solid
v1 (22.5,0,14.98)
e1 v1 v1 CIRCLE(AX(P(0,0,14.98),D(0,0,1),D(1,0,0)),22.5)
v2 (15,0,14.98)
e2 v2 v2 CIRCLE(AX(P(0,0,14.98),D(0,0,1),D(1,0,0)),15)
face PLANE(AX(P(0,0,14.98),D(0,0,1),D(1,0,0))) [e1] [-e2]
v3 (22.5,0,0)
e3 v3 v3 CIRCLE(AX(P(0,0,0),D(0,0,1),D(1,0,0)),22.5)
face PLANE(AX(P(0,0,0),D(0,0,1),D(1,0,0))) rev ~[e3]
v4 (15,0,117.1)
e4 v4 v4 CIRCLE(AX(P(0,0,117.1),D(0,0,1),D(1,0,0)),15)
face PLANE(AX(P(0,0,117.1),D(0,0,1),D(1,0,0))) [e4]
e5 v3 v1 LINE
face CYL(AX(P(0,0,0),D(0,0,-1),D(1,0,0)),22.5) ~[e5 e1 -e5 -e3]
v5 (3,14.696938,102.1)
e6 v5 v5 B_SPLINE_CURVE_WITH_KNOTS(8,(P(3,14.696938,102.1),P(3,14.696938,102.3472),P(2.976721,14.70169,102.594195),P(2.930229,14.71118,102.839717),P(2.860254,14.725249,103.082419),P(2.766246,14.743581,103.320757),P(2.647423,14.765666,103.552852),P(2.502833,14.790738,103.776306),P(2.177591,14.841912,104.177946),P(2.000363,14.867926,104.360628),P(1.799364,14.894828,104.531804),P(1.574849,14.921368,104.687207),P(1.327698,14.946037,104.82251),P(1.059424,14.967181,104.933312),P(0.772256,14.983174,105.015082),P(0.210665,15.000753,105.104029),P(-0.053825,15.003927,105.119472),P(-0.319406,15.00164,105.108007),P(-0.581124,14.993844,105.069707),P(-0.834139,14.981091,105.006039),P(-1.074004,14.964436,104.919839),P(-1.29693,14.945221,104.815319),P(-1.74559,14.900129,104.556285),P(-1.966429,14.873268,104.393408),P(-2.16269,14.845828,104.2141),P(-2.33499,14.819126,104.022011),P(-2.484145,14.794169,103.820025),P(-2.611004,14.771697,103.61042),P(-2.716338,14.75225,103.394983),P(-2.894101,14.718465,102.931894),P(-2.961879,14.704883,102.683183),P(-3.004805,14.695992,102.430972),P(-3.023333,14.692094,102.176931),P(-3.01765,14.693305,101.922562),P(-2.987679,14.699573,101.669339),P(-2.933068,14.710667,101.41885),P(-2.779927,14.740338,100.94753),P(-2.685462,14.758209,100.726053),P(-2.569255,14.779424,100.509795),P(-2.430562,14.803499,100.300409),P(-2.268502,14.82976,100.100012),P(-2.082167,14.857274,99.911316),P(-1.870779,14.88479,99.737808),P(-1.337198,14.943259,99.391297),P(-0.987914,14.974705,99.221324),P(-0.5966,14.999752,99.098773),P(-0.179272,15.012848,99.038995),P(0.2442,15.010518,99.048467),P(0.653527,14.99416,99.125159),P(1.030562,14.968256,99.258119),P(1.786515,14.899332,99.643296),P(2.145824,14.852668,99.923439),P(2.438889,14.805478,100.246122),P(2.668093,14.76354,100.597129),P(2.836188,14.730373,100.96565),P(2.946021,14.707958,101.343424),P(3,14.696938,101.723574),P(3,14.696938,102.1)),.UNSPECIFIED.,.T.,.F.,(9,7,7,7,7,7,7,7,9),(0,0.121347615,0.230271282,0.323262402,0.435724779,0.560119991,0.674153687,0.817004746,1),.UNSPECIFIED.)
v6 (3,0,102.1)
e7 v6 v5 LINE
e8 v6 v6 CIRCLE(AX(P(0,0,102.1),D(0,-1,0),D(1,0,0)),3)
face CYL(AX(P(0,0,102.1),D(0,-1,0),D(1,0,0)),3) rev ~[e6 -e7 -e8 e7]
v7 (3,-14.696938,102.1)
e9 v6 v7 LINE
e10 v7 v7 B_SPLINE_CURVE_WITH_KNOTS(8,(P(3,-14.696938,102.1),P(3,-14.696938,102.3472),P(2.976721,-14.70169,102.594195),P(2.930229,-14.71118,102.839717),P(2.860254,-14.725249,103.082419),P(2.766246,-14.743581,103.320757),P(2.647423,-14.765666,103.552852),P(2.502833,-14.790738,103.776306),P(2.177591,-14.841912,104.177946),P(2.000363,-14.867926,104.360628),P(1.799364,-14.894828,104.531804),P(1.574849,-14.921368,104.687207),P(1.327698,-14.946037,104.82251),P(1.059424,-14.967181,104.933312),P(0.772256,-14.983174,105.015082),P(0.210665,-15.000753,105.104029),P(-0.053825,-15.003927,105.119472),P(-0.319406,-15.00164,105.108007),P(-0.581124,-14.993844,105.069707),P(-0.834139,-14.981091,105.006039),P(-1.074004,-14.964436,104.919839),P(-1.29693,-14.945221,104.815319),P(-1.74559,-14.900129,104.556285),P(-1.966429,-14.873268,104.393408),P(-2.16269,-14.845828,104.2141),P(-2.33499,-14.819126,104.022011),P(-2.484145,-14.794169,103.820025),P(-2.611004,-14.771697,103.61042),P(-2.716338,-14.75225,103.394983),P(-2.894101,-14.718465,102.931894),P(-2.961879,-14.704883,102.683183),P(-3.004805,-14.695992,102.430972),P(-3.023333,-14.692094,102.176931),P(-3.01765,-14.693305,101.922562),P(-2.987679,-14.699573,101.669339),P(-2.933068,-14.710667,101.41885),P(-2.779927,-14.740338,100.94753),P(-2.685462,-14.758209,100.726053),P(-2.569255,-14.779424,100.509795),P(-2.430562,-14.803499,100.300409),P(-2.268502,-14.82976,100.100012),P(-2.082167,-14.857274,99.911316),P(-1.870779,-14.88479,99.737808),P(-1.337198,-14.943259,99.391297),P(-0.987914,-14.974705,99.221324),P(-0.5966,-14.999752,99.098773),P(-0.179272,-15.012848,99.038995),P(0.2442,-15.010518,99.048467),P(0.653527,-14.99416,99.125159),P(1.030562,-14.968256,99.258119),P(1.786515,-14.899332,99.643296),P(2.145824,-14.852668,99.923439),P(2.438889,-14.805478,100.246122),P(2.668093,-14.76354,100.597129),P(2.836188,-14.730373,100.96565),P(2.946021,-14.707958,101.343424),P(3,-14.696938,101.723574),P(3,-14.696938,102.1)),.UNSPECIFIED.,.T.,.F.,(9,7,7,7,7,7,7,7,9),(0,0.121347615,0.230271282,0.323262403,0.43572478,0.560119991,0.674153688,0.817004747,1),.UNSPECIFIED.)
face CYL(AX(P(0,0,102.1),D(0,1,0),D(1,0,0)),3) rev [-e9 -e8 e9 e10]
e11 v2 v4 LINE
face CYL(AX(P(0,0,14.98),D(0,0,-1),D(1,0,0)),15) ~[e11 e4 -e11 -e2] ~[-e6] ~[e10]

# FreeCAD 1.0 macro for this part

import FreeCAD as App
import Part
import Sketcher

V = App.Vector

doc = App.newDocument("Part")
body = doc.addObject("PartDesign::Body", "Body")

# Sketch on XY plane
sketch1 = body.newObject("Sketcher::SketchObject", "Sketch")
sketch1.AttachmentSupport = (doc.getObject("XY_Plane"), [""])
sketch1.MapMode = "FlatFace"
sketch1.addGeometry(Part.Circle(V(0, 0, 0), V(0, 0, 1), 22), False)
sketch1.addConstraint(Sketcher.Constraint("Coincident", 0, 3, -1, 1))
sketch1.addConstraint(Sketcher.Constraint("Diameter", 0, 45.0))
pad1 = body.newObject("PartDesign::Pad", "Pad")
pad1.Profile = sketch1
pad1.Length = 14.98

# Sketch on XY plane
sketch2 = body.newObject("Sketcher::SketchObject", "Sketch001")
sketch2.AttachmentSupport = (doc.getObject("XY_Plane"), [""])
sketch2.MapMode = "FlatFace"
sketch2.AttachmentOffset = App.Placement(V(0, 0, 14.98), App.Rotation())
sketch2.addGeometry(Part.Circle(V(0, 0, 0), V(0, 0, 1), 15), False)
sketch2.addConstraint(Sketcher.Constraint("Coincident", 0, 3, -1, 1))
sketch2.addConstraint(Sketcher.Constraint("Diameter", 0, 30.0))
pad2 = body.newObject("PartDesign::Pad", "Pad001")
pad2.Profile = sketch2
pad2.Length = 102.12

# Sketch on XZ plane
sketch3 = body.newObject("Sketcher::SketchObject", "Sketch002")
sketch3.AttachmentSupport = (doc.getObject("XZ_Plane"), [""])
sketch3.MapMode = "FlatFace"
sketch3.addGeometry(Part.Circle(V(0, 102.1, 0), V(0, 0, 1), 3), False)
sketch3.addConstraint(Sketcher.Constraint("PointOnObject", 0, 3, -2))
sketch3.addConstraint(Sketcher.Constraint("Diameter", 0, 6.0))
sketch3.addConstraint(Sketcher.Constraint("DistanceY", -1, 1, 0, 3, 102.1))
pocket1 = body.newObject("PartDesign::Pocket", "Pocket")
pocket1.Profile = sketch3
pocket1.Type = "ThroughAll"
pocket1.Midplane = True

doc.recompute()
